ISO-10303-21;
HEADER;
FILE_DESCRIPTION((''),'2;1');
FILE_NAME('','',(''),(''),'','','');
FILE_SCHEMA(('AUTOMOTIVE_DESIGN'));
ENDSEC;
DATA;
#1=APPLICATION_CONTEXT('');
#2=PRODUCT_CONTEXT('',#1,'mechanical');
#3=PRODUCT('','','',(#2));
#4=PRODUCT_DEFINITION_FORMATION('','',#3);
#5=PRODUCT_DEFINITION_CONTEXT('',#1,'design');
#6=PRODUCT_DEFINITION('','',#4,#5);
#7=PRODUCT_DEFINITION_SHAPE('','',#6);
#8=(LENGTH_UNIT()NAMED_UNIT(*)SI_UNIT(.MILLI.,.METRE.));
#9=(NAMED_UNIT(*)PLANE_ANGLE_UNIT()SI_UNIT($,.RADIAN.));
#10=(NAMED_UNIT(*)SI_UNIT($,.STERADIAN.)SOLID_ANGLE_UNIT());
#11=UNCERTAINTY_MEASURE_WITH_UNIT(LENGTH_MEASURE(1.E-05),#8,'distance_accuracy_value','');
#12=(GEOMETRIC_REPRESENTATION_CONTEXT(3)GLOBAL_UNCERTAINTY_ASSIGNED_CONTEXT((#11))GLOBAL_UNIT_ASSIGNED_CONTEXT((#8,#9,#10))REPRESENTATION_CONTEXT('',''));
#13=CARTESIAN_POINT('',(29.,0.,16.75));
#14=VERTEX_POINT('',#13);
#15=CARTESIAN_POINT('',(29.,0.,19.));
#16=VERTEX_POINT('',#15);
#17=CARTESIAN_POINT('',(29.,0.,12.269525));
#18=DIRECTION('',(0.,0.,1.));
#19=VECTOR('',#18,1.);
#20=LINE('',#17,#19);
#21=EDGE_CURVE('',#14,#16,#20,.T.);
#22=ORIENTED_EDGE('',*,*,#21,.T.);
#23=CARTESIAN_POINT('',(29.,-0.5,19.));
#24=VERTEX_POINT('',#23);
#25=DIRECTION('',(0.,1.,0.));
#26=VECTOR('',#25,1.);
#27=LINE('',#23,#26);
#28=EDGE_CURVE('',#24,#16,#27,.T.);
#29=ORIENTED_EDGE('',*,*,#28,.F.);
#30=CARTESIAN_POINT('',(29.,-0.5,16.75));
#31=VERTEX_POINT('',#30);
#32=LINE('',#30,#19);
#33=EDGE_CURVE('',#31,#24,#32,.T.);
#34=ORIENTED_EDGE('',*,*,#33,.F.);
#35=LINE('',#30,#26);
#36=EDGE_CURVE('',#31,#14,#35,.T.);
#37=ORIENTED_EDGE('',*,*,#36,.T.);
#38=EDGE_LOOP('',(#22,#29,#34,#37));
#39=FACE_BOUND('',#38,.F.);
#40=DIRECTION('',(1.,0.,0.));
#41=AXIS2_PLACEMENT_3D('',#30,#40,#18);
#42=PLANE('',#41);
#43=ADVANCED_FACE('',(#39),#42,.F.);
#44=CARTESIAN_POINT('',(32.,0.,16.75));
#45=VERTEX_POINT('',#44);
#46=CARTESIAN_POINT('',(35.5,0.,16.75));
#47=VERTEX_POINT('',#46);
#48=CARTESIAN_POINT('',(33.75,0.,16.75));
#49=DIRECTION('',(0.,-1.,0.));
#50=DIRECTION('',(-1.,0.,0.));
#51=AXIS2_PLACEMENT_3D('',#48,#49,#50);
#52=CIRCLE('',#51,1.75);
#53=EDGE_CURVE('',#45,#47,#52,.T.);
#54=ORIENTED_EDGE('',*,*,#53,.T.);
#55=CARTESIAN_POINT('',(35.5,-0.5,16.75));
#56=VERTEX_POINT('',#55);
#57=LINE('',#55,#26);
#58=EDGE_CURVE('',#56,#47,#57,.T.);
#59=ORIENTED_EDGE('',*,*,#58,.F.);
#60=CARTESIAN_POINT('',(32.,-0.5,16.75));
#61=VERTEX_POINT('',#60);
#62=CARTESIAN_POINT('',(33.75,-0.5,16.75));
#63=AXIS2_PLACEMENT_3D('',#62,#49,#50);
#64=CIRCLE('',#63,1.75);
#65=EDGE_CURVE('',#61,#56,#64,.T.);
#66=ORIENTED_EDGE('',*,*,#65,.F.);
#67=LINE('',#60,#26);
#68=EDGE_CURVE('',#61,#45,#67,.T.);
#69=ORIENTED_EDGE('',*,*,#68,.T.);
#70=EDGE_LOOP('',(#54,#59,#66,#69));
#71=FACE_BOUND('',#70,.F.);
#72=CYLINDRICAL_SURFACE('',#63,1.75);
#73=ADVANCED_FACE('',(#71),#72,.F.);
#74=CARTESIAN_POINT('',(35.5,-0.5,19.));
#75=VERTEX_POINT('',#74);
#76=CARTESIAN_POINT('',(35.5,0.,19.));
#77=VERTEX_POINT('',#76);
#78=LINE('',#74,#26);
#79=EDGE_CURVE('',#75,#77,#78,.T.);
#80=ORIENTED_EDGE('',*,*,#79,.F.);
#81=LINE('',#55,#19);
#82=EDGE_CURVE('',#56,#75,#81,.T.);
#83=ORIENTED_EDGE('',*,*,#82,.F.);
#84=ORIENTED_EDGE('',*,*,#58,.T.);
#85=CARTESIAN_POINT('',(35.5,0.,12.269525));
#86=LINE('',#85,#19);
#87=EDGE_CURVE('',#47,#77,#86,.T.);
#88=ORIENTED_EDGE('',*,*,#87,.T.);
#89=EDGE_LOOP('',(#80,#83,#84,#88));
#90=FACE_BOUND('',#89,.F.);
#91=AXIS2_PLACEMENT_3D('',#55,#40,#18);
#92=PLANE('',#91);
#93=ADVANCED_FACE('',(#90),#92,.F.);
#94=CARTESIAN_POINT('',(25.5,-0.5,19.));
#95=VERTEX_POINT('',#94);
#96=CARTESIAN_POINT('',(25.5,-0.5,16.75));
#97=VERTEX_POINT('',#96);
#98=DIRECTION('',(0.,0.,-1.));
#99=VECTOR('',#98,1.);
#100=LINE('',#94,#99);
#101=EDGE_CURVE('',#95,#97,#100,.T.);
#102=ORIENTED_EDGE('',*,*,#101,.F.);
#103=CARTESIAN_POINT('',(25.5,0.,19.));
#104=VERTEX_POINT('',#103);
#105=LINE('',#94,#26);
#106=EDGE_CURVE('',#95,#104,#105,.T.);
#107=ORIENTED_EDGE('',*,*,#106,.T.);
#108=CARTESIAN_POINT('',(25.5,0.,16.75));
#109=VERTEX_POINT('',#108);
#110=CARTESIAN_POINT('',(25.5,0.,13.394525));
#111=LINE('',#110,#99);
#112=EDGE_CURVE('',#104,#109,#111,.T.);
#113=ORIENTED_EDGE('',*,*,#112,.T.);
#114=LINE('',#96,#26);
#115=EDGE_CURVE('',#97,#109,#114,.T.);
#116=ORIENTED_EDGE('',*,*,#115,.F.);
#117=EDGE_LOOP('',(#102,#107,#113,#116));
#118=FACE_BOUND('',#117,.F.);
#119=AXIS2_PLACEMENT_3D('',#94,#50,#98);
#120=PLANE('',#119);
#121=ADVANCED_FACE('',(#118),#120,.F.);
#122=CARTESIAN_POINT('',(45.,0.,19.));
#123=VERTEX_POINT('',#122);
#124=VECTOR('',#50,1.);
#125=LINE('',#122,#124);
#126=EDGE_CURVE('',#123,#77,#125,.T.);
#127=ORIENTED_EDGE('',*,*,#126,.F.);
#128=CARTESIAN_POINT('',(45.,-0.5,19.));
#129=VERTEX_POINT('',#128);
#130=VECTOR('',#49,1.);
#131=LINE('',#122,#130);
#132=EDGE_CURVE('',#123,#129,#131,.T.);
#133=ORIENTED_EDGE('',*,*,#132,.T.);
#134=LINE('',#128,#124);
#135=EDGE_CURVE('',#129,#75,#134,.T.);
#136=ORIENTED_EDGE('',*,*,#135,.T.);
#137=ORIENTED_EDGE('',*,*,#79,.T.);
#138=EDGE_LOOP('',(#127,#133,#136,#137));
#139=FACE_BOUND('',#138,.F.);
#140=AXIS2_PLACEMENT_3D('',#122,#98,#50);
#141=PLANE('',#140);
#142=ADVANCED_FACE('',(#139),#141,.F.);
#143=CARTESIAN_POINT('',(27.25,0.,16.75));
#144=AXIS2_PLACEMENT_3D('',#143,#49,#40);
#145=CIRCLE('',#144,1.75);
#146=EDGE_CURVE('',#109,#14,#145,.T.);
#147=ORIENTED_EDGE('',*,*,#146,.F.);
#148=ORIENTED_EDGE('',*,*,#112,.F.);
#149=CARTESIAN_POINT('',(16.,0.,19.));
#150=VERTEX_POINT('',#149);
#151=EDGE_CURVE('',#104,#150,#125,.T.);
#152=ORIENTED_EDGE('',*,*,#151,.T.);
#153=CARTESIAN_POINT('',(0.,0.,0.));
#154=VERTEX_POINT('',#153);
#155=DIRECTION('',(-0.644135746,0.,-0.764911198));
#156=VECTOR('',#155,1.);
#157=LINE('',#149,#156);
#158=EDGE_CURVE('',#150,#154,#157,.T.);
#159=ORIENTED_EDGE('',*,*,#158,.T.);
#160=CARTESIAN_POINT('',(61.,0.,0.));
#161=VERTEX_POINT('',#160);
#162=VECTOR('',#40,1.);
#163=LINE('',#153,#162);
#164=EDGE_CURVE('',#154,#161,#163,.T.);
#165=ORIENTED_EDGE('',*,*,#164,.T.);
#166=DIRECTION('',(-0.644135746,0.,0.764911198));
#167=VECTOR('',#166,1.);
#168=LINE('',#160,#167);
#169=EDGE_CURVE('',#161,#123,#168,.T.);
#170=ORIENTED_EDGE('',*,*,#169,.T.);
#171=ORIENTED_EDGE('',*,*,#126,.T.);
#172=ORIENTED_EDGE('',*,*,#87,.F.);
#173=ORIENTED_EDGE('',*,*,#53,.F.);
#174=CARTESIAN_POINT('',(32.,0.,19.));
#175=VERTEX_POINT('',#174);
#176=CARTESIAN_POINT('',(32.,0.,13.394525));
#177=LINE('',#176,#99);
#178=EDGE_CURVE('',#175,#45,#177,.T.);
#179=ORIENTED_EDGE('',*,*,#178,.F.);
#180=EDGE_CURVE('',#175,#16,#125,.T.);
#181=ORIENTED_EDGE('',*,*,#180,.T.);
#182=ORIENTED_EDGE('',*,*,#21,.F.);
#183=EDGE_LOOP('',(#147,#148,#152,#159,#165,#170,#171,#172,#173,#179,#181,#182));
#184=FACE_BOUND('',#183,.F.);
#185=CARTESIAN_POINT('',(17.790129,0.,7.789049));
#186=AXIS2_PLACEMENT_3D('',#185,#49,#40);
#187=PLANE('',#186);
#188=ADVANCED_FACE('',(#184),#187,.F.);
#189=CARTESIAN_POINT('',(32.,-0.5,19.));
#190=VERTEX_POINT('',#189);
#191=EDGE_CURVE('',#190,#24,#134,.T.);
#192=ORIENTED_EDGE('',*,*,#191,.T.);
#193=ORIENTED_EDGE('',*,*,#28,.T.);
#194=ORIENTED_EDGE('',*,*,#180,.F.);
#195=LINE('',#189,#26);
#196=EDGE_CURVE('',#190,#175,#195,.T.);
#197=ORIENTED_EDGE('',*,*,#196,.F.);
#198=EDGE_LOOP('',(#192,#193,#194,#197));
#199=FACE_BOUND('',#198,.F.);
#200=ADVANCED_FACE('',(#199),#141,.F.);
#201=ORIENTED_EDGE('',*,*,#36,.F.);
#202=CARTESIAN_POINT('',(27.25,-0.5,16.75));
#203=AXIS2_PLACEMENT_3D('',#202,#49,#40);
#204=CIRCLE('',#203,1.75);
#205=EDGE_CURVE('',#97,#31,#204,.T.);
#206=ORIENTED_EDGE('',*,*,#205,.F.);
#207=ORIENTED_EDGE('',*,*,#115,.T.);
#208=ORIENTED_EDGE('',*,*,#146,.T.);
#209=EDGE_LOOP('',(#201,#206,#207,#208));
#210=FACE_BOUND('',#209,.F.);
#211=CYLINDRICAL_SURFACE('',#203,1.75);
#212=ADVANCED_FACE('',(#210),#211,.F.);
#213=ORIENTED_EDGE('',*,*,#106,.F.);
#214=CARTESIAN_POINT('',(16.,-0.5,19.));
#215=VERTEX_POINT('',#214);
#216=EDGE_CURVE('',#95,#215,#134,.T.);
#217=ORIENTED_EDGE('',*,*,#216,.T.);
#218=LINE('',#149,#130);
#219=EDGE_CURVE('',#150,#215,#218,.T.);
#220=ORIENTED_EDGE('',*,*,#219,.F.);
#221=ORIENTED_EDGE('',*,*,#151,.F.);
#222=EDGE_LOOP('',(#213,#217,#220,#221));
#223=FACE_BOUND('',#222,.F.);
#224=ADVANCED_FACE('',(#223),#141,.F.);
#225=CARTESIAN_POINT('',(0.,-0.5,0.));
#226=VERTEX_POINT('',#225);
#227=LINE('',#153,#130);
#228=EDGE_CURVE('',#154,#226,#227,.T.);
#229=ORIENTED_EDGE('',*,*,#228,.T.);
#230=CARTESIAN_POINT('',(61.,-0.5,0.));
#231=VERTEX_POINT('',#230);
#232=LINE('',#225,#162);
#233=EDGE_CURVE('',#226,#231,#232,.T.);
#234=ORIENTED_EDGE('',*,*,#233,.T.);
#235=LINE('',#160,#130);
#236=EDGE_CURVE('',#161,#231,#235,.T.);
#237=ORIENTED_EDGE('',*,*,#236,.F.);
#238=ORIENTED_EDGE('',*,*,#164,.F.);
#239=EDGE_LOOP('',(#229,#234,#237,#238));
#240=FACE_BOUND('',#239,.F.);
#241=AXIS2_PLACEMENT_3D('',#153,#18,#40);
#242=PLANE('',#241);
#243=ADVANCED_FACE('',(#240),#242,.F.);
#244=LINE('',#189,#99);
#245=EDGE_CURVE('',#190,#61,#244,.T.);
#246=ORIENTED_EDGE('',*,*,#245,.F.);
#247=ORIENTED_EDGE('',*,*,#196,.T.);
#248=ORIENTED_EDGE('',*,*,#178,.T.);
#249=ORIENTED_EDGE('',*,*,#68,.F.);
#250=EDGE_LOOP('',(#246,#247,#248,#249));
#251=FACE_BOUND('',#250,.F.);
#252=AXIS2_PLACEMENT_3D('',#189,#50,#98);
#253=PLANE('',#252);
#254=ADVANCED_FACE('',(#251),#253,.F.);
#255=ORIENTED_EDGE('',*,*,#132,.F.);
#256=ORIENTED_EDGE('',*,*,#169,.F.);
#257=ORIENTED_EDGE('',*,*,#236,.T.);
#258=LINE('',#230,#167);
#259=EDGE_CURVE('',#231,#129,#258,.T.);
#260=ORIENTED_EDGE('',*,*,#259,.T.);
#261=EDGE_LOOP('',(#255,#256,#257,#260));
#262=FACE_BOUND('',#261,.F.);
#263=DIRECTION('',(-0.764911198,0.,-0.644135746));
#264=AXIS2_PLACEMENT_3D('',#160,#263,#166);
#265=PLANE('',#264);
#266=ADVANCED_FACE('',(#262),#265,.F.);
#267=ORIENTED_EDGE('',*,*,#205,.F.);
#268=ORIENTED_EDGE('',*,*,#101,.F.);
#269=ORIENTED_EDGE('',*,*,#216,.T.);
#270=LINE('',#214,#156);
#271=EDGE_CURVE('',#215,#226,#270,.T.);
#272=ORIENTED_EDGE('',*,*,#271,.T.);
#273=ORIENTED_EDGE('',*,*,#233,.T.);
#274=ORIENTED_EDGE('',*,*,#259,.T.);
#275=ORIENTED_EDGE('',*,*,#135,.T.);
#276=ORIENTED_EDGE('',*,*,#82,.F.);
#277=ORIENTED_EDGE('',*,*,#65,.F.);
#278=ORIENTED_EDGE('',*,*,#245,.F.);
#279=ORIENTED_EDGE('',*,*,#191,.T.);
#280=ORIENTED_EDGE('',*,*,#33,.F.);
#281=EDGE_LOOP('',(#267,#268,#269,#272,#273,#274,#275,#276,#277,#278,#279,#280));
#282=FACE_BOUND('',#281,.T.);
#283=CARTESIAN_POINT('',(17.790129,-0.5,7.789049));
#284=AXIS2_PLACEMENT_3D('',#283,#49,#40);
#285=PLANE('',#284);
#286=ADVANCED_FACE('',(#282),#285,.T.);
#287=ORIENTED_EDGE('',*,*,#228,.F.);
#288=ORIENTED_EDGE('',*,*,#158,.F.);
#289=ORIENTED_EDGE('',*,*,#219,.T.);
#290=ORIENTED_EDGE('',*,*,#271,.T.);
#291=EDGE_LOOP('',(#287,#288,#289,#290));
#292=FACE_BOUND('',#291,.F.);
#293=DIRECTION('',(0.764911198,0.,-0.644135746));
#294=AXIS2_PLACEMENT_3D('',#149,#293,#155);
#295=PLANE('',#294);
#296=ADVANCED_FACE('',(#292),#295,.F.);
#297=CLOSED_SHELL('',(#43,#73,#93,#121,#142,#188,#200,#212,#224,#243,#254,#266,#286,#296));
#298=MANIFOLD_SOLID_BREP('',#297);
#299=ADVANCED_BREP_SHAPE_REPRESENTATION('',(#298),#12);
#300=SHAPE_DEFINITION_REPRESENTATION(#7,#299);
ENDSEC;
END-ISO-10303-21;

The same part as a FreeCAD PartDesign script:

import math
import FreeCAD as App
import Part
import Sketcher
from FreeCAD import Vector
Q = App.Units.Quantity

doc = App.newDocument("Part")
body = doc.addObject("PartDesign::Body", "Body")

sketch1 = body.newObject("Sketcher::SketchObject", "Sketch")
sketch1.AttachmentSupport = (doc.getObject("XZ_Plane"), [""])
sketch1.MapMode = "FlatFace"
sketch1.addGeometry([
    Part.LineSegment(Vector(16, 19, 0), Vector(0, 0, 0)),
    Part.LineSegment(Vector(0, 0, 0), Vector(61, 0, 0)),
    Part.LineSegment(Vector(61, 0, 0), Vector(45, 19, 0)),
    Part.LineSegment(Vector(45, 19, 0), Vector(16, 19, 0)),
], False)
sketch1.addConstraint([
    Sketcher.Constraint("Coincident", 0, 2, 1, 1),
    Sketcher.Constraint("Coincident", 1, 2, 2, 1),
    Sketcher.Constraint("Coincident", 2, 2, 3, 1),
    Sketcher.Constraint("Coincident", 3, 2, 0, 1),
    Sketcher.Constraint("Horizontal", 1),
    Sketcher.Constraint("Horizontal", 3),
    Sketcher.Constraint("Coincident", 0, 2, -1, 1),
    Sketcher.Constraint("Equal", 0, 2),
    Sketcher.Constraint("DistanceX", 1, 1, 1, 2, Q("61 mm")),
    Sketcher.Constraint("DistanceX", 3, 2, 3, 1, Q("29 mm")),
    Sketcher.Constraint("DistanceY", -1, 1, 2, 2, Q("19 mm")),
])
pad1 = body.newObject("PartDesign::Pad", "Pad")
pad1.Profile = sketch1
pad1.Length = 0.5

sketch2 = body.newObject("Sketcher::SketchObject", "Sketch001")
sketch2.AttachmentSupport = (doc.getObject("XZ_Plane"), [""])
sketch2.MapMode = "FlatFace"
sketch2.AttachmentOffset = App.Placement(Vector(0, 0, 0.5), App.Rotation())
sketch2.addGeometry([
    Part.LineSegment(Vector(35.5, 19, 0), Vector(32, 19, 0)),
    Part.LineSegment(Vector(32, 19, 0), Vector(32, 16.8, 0)),
    Part.ArcOfCircle(Part.Circle(Vector(33.8, 16.8, 0), Vector(0, 0, 1), 1.8), math.radians(180), math.radians(360)),
    Part.LineSegment(Vector(35.5, 16.8, 0), Vector(35.5, 19, 0)),
    Part.ArcOfCircle(Part.Circle(Vector(27.2, 16.8, 0), Vector(0, 0, 1), 1.8), math.radians(180), math.radians(360)),
    Part.LineSegment(Vector(29, 16.8, 0), Vector(29, 19, 0)),
    Part.LineSegment(Vector(29, 19, 0), Vector(25.5, 19, 0)),
    Part.LineSegment(Vector(25.5, 19, 0), Vector(25.5, 16.8, 0)),
], False)
sketch2.addConstraint([
    Sketcher.Constraint("Coincident", 0, 2, 1, 1),
    Sketcher.Constraint("Tangent", 1, 2, 2, 1),
    Sketcher.Constraint("Tangent", 2, 2, 3, 1),
    Sketcher.Constraint("Coincident", 3, 2, 0, 1),
    Sketcher.Constraint("Tangent", 4, 2, 5, 1),
    Sketcher.Constraint("Coincident", 5, 2, 6, 1),
    Sketcher.Constraint("Coincident", 6, 2, 7, 1),
    Sketcher.Constraint("Tangent", 7, 2, 4, 1),
    Sketcher.Constraint("Horizontal", 0),
    Sketcher.Constraint("Vertical", 1),
    Sketcher.Constraint("Vertical", 3),
    Sketcher.Constraint("Vertical", 5),
    Sketcher.Constraint("Horizontal", 6),
    Sketcher.Constraint("Vertical", 7),
    Sketcher.Constraint("Equal", 2, 4),
    Sketcher.Constraint("Horizontal", 2, 3, 4, 3),
    Sketcher.Constraint("Horizontal", 3, 2, 5, 2),
    Sketcher.Constraint("Radius", 2, Q("1.75 mm")),
    Sketcher.Constraint("DistanceX", -1, 1, 0, 2, Q("32 mm")),
    Sketcher.Constraint("DistanceY", -1, 1, 0, 2, Q("19 mm")),
    Sketcher.Constraint("DistanceX", -1, 1, 4, 2, Q("29 mm")),
    Sketcher.Constraint("DistanceY", 1, 2, 1, 1, Q("2.25 mm")),
])
pocket1 = body.newObject("PartDesign::Pocket", "Pocket")
pocket1.Profile = sketch2
pocket1.Length = 25

doc.recompute()
